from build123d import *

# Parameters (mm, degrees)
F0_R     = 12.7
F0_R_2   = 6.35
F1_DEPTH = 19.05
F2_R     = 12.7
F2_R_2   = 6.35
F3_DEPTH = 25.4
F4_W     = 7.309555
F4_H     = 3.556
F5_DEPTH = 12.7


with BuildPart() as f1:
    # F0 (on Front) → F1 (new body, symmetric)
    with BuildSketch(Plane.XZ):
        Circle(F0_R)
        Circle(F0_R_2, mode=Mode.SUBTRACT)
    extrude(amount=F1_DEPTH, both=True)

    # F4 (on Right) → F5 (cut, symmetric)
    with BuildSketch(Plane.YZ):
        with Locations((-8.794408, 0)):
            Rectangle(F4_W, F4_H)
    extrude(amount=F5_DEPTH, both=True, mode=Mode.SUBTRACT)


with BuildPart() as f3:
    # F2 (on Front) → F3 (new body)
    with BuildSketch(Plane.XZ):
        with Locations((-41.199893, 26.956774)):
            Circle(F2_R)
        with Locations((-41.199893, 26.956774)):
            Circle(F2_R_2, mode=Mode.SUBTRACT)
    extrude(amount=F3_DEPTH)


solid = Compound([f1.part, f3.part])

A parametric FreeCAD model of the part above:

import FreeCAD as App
import Part
import Sketcher

V = App.Vector
Q = App.Units.Quantity

doc = App.newDocument("Part")
params = doc.addObject("Spreadsheet::Sheet", "Params")
for row, (alias, value) in enumerate([
    ("sketch1_diameter", "1 in"),
    ("sketch1_diameter2", "0.5 in"),
    ("pad1_length", "1.5 in"),
    ("sketch2_height", "0.14 in"),
    ("pocket1_length", "1 in"),
    ("sketch3_diameter", "1 in"),
    ("sketch3_diameter2", "0.5 in"),
    ("pad2_length", "1 in"),
], start=1):
    params.set(f"A{row}", alias)
    params.set(f"B{row}", "=" + value)
    params.setAlias(f"B{row}", alias)

body = doc.addObject("PartDesign::Body", "Body")

# Sketch on XZ plane
sketch1 = body.newObject("Sketcher::SketchObject", "Sketch")
sketch1.AttachmentSupport = (doc.getObject("XZ_Plane"), [""])
sketch1.MapMode = "FlatFace"
sketch1.addGeometry(Part.Circle(V(0, 0, 0), V(0, 0, 1), 13), False)
sketch1.addGeometry(Part.Circle(V(0, 0, 0), V(0, 0, 1), 6), False)
sketch1.addConstraint(Sketcher.Constraint("Coincident", 0, 3, -1, 1))
sketch1.addConstraint(Sketcher.Constraint("Coincident", 1, 3, -1, 1))
sketch1.addConstraint(Sketcher.Constraint("Diameter", 0, Q("1 in")))
sketch1.addConstraint(Sketcher.Constraint("Diameter", 1, Q("0.5 in")))
sketch1.setExpression("Constraints[2]", "Params.sketch1_diameter")
sketch1.setExpression("Constraints[3]", "Params.sketch1_diameter2")
pad1 = body.newObject("PartDesign::Pad", "Pad")
pad1.Profile = sketch1
pad1.setExpression("Length", "Params.pad1_length")
pad1.Midplane = True

# Sketch on YZ plane
sketch2 = body.newObject("Sketcher::SketchObject", "Sketch001")
sketch2.AttachmentSupport = (doc.getObject("YZ_Plane"), [""])
sketch2.MapMode = "FlatFace"
sketch2.addGeometry(Part.LineSegment(V(-12.4, 1.8, 0), V(-12.4, -1.8, 0)), False)
sketch2.addGeometry(Part.LineSegment(V(-12.4, -1.8, 0), V(-5.1, -1.8, 0)), False)
sketch2.addGeometry(Part.LineSegment(V(-5.1, -1.8, 0), V(-5.1, 1.8, 0)), False)
sketch2.addGeometry(Part.LineSegment(V(-5.1, 1.8, 0), V(-12.4, 1.8, 0)), False)
sketch2.addConstraint(Sketcher.Constraint("Coincident", 0, 2, 1, 1))
sketch2.addConstraint(Sketcher.Constraint("Coincident", 1, 2, 2, 1))
sketch2.addConstraint(Sketcher.Constraint("Coincident", 2, 2, 3, 1))
sketch2.addConstraint(Sketcher.Constraint("Coincident", 3, 2, 0, 1))
sketch2.addConstraint(Sketcher.Constraint("Vertical", 0))
sketch2.addConstraint(Sketcher.Constraint("Horizontal", 1))
sketch2.addConstraint(Sketcher.Constraint("Vertical", 2))
sketch2.addConstraint(Sketcher.Constraint("Horizontal", 3))
sketch2.addConstraint(Sketcher.Constraint("DistanceY", 0, 2, 0, 1, Q("0.14 in")))
sketch2.addConstraint(Sketcher.Constraint("DistanceY", 0, 2, -1, 1, Q("0.07 in")))
sketch2.addConstraint(Sketcher.Constraint("DistanceX", 1, 1, 1, 2, Q("7.309555 mm")))
sketch2.addConstraint(Sketcher.Constraint("DistanceX", 1, 2, -1, 1, Q("5.13963 mm")))
sketch2.setExpression("Constraints[8]", "Params.sketch2_height")
pocket1 = body.newObject("PartDesign::Pocket", "Pocket")
pocket1.Profile = sketch2
pocket1.setExpression("Length", "Params.pocket1_length")
pocket1.Midplane = True
body2 = doc.addObject("PartDesign::Body", "Body001")

# Sketch on XZ plane
sketch3 = body2.newObject("Sketcher::SketchObject", "Sketch002")
sketch3.AttachmentSupport = (doc.getObject("XZ_Plane001"), [""])
sketch3.MapMode = "FlatFace"
sketch3.addGeometry(Part.Circle(V(-41, 27, 0), V(0, 0, 1), 13), False)
sketch3.addGeometry(Part.Circle(V(-41, 27, 0), V(0, 0, 1), 6), False)
sketch3.addConstraint(Sketcher.Constraint("Coincident", 1, 3, 0, 3))
sketch3.addConstraint(Sketcher.Constraint("Diameter", 0, Q("1 in")))
sketch3.addConstraint(Sketcher.Constraint("Diameter", 1, Q("0.5 in")))
sketch3.addConstraint(Sketcher.Constraint("DistanceX", 0, 3, -1, 1, Q("41.199893 mm")))
sketch3.addConstraint(Sketcher.Constraint("DistanceY", -1, 1, 0, 3, Q("26.956774 mm")))
sketch3.setExpression("Constraints[1]", "Params.sketch3_diameter")
sketch3.setExpression("Constraints[2]", "Params.sketch3_diameter2")
pad2 = body2.newObject("PartDesign::Pad", "Pad001")
pad2.Profile = sketch3
pad2.setExpression("Length", "Params.pad2_length")

doc.recompute()
